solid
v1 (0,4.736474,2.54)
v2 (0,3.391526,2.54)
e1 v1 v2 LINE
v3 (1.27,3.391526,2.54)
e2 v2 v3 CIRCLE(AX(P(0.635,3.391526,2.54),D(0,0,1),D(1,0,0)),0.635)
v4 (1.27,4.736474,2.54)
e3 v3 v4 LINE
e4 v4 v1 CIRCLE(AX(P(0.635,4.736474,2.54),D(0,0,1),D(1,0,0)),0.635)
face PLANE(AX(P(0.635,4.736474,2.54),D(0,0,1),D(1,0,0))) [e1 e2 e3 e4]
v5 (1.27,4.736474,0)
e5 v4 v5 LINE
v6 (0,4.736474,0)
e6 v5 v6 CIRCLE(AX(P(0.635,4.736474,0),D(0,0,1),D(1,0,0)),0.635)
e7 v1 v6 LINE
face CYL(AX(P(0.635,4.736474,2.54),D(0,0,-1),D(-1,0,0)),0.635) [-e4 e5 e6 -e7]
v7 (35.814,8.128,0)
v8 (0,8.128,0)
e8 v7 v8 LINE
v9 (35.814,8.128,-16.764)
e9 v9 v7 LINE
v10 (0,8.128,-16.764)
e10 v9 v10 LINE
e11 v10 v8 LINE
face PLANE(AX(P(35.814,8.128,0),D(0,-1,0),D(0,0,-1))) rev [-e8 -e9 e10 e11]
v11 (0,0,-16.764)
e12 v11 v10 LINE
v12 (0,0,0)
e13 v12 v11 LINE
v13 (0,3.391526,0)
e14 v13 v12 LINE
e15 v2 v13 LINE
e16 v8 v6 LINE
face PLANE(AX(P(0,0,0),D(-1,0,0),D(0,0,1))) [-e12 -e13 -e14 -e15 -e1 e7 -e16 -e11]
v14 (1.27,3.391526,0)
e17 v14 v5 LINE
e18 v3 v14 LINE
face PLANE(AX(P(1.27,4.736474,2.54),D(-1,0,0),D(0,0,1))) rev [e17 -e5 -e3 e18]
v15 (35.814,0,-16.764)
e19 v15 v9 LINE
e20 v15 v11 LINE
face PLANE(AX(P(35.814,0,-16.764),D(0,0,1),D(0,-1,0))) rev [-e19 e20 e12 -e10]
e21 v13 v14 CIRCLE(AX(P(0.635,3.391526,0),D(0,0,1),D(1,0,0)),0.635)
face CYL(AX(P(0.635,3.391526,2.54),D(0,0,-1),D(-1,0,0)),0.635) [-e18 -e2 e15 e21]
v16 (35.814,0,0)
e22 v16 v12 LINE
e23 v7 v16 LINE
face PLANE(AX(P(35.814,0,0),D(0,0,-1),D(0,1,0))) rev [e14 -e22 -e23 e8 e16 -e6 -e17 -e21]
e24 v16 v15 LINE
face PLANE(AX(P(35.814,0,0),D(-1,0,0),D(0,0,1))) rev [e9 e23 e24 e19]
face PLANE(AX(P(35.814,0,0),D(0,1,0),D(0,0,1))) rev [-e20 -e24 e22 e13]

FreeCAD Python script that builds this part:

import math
import FreeCAD as App
import Part
import Sketcher

V = App.Vector
Q = App.Units.Quantity

doc = App.newDocument("Part")
body = doc.addObject("PartDesign::Body", "Body")

# Sketch on YZ plane
sketch1 = doc.addObject("Sketcher::SketchObject", "Sketch")
body.addObject(sketch1)
sketch1.AttachmentSupport = (doc.YZ_Plane, [""])
sketch1.MapMode = "FlatFace"
sketch1.addGeometry(Part.LineSegment(V(8.128, 0, 0), V(0, 0, 0)), False)
sketch1.addGeometry(Part.LineSegment(V(0, 0, 0), V(0, -16.764, 0)), False)
sketch1.addGeometry(Part.LineSegment(V(0, -16.764, 0), V(8.128, -16.764, 0)), False)
sketch1.addGeometry(Part.LineSegment(V(8.128, -16.764, 0), V(8.128, 0, 0)), False)
sketch1.addConstraint(Sketcher.Constraint("Coincident", 0, 2, 1, 1))
sketch1.addConstraint(Sketcher.Constraint("Coincident", 1, 2, 2, 1))
sketch1.addConstraint(Sketcher.Constraint("Coincident", 2, 2, 3, 1))
sketch1.addConstraint(Sketcher.Constraint("Coincident", 3, 2, 0, 1))
sketch1.addConstraint(Sketcher.Constraint("Horizontal", 0))
sketch1.addConstraint(Sketcher.Constraint("Vertical", 1))
sketch1.addConstraint(Sketcher.Constraint("Horizontal", 2))
sketch1.addConstraint(Sketcher.Constraint("Vertical", 3))
sketch1.addConstraint(Sketcher.Constraint("Coincident", 0, 2, -1, 1))
sketch1.addConstraint(Sketcher.Constraint("DistanceX", 0, 2, 0, 1, Q("0.32 in")))
sketch1.addConstraint(Sketcher.Constraint("DistanceY", 1, 2, 1, 1, Q("0.66 in")))
pad1 = doc.addObject("PartDesign::Pad", "Pad")
body.addObject(pad1)
pad1.Profile = sketch1
pad1.Length = Q("1.41 in")

# Sketch on XY plane
sketch2 = doc.addObject("Sketcher::SketchObject", "Sketch001")
body.addObject(sketch2)
sketch2.AttachmentSupport = (doc.XY_Plane, [""])
sketch2.MapMode = "FlatFace"
sketch2.addGeometry(Part.LineSegment(V(1.27, 3.391526, 0), V(1.27, 4.736474, 0)), False)
sketch2.addGeometry(Part.ArcOfCircle(Part.Circle(V(0.635, 4.736474, 0), V(0, 0, 1), 0.635), math.radians(0), math.radians(180)), False)
sketch2.addGeometry(Part.LineSegment(V(0, 4.736474, 0), V(0, 3.391526, 0)), False)
sketch2.addGeometry(Part.ArcOfCircle(Part.Circle(V(0.635, 3.391526, 0), V(0, 0, 1), 0.635), math.radians(180), math.radians(360)), False)
sketch2.addConstraint(Sketcher.Constraint("Tangent", 0, 2, 1, 1))
sketch2.addConstraint(Sketcher.Constraint("Tangent", 1, 2, 2, 1))
sketch2.addConstraint(Sketcher.Constraint("Tangent", 2, 2, 3, 1))
sketch2.addConstraint(Sketcher.Constraint("Tangent", 3, 2, 0, 1))
sketch2.addConstraint(Sketcher.Constraint("Vertical", 0))
sketch2.addConstraint(Sketcher.Constraint("Vertical", 2))
sketch2.addConstraint(Sketcher.Constraint("PointOnObject", 1, 2, -2))
sketch2.addConstraint(Sketcher.Constraint("Radius", 1, Q("0.025 in")))
sketch2.addConstraint(Sketcher.Constraint("DistanceY", 0, 1, 0, 2, Q("1.344947 mm")))
sketch2.addConstraint(Sketcher.Constraint("DistanceY", -1, 1, 1, 3, Q("4.736474 mm")))
pad2 = doc.addObject("PartDesign::Pad", "Pad001")
body.addObject(pad2)
pad2.Profile = sketch2
pad2.Length = Q("0.1 in")

doc.recompute()
